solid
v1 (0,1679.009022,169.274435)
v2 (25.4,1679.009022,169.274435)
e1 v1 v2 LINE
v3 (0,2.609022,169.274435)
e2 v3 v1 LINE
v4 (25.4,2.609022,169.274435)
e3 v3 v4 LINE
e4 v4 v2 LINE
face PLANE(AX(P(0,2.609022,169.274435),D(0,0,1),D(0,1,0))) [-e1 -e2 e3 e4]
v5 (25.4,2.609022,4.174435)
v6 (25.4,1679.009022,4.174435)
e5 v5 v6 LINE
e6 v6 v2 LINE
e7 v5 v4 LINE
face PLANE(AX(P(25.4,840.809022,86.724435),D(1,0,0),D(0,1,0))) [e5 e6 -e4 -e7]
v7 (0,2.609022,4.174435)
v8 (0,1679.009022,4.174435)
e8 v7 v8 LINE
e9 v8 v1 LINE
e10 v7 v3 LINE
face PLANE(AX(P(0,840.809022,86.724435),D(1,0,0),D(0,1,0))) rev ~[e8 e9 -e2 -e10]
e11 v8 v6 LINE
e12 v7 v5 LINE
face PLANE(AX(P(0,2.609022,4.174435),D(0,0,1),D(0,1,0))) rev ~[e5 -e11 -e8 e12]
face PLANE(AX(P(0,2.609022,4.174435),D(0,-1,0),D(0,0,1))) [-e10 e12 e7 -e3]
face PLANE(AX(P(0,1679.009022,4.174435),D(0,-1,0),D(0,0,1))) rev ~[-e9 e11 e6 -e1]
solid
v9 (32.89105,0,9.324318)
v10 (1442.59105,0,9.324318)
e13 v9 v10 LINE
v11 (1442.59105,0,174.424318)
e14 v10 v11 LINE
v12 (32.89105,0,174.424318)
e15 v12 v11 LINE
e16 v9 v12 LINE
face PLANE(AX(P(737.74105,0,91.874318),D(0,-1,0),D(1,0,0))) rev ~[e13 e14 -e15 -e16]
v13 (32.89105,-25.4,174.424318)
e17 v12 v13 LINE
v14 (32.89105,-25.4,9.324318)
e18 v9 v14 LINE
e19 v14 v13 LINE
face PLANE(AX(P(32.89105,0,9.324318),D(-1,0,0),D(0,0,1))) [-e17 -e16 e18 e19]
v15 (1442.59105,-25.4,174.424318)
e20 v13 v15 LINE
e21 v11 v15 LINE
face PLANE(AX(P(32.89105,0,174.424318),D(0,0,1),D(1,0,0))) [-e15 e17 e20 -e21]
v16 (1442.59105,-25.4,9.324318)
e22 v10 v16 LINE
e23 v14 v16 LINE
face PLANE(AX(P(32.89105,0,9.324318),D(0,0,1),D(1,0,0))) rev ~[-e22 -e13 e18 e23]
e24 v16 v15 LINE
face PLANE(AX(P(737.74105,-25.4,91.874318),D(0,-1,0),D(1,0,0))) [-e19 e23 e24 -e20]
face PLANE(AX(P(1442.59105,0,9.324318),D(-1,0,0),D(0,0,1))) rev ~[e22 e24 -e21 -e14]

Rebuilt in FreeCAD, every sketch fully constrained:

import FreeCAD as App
import Part
import Sketcher
Q = App.Units.Quantity


def add_polygon(sketch, points):
    """Adds a closed chain of lines whose ends are joined by coincident constraints."""
    first, n = sketch.GeometryCount, len(points)
    for a, b in zip(points, points[1:] + points[:1]):
        sketch.addGeometry(Part.LineSegment(App.Vector(*a, 0), App.Vector(*b, 0)), False)
    for i in range(n):
        sketch.addConstraint(Sketcher.Constraint("Coincident", first + i, 2, first + (i + 1) % n, 1))

doc = App.newDocument("Part")
body = doc.addObject("PartDesign::Body", "Body")

# Sketch on YZ plane
sketch1 = body.newObject("Sketcher::SketchObject", "Sketch")
sketch1.AttachmentSupport = (doc.getObject("YZ_Plane"), [""])
sketch1.MapMode = "FlatFace"
add_polygon(sketch1, [(3, 169), (3, 4), (1679, 4), (1679, 169)])  # lines 0-3
sketch1.addConstraint(Sketcher.Constraint("Vertical", 0))
sketch1.addConstraint(Sketcher.Constraint("Horizontal", 1))
sketch1.addConstraint(Sketcher.Constraint("Vertical", 2))
sketch1.addConstraint(Sketcher.Constraint("Horizontal", 3))
sketch1.addConstraint(Sketcher.Constraint("DistanceX", 1, 1, 1, 2, Q("66 in")))
sketch1.addConstraint(Sketcher.Constraint("DistanceY", 0, 2, 0, 1, Q("6.5 in")))
sketch1.addConstraint(Sketcher.Constraint("DistanceX", -1, 1, 0, 2, Q("2.609022 mm")))
sketch1.addConstraint(Sketcher.Constraint("DistanceY", -1, 1, 0, 2, Q("4.174435 mm")))
pad1 = body.newObject("PartDesign::Pad", "Pad")
pad1.Profile = sketch1
pad1.Length = Q("1 in")
body2 = doc.addObject("PartDesign::Body", "Body001")

# Sketch on XZ plane
sketch2 = body2.newObject("Sketcher::SketchObject", "Sketch001")
sketch2.AttachmentSupport = (doc.getObject("XZ_Plane001"), [""])
sketch2.MapMode = "FlatFace"
add_polygon(sketch2, [(33, 174), (33, 9), (1443, 9), (1443, 174)])  # lines 0-3
sketch2.addConstraint(Sketcher.Constraint("Vertical", 0))
sketch2.addConstraint(Sketcher.Constraint("Horizontal", 1))
sketch2.addConstraint(Sketcher.Constraint("Vertical", 2))
sketch2.addConstraint(Sketcher.Constraint("Horizontal", 3))
sketch2.addConstraint(Sketcher.Constraint("DistanceX", 1, 1, 1, 2, Q("55.5 in")))
sketch2.addConstraint(Sketcher.Constraint("DistanceY", 0, 2, 0, 1, Q("6.5 in")))
sketch2.addConstraint(Sketcher.Constraint("DistanceX", -1, 1, 0, 2, Q("32.89105 mm")))
sketch2.addConstraint(Sketcher.Constraint("DistanceY", -1, 1, 2, 2, Q("174.424318 mm")))
pad2 = body2.newObject("PartDesign::Pad", "Pad001")
pad2.Profile = sketch2
pad2.Length = Q("1 in")

doc.recompute()
